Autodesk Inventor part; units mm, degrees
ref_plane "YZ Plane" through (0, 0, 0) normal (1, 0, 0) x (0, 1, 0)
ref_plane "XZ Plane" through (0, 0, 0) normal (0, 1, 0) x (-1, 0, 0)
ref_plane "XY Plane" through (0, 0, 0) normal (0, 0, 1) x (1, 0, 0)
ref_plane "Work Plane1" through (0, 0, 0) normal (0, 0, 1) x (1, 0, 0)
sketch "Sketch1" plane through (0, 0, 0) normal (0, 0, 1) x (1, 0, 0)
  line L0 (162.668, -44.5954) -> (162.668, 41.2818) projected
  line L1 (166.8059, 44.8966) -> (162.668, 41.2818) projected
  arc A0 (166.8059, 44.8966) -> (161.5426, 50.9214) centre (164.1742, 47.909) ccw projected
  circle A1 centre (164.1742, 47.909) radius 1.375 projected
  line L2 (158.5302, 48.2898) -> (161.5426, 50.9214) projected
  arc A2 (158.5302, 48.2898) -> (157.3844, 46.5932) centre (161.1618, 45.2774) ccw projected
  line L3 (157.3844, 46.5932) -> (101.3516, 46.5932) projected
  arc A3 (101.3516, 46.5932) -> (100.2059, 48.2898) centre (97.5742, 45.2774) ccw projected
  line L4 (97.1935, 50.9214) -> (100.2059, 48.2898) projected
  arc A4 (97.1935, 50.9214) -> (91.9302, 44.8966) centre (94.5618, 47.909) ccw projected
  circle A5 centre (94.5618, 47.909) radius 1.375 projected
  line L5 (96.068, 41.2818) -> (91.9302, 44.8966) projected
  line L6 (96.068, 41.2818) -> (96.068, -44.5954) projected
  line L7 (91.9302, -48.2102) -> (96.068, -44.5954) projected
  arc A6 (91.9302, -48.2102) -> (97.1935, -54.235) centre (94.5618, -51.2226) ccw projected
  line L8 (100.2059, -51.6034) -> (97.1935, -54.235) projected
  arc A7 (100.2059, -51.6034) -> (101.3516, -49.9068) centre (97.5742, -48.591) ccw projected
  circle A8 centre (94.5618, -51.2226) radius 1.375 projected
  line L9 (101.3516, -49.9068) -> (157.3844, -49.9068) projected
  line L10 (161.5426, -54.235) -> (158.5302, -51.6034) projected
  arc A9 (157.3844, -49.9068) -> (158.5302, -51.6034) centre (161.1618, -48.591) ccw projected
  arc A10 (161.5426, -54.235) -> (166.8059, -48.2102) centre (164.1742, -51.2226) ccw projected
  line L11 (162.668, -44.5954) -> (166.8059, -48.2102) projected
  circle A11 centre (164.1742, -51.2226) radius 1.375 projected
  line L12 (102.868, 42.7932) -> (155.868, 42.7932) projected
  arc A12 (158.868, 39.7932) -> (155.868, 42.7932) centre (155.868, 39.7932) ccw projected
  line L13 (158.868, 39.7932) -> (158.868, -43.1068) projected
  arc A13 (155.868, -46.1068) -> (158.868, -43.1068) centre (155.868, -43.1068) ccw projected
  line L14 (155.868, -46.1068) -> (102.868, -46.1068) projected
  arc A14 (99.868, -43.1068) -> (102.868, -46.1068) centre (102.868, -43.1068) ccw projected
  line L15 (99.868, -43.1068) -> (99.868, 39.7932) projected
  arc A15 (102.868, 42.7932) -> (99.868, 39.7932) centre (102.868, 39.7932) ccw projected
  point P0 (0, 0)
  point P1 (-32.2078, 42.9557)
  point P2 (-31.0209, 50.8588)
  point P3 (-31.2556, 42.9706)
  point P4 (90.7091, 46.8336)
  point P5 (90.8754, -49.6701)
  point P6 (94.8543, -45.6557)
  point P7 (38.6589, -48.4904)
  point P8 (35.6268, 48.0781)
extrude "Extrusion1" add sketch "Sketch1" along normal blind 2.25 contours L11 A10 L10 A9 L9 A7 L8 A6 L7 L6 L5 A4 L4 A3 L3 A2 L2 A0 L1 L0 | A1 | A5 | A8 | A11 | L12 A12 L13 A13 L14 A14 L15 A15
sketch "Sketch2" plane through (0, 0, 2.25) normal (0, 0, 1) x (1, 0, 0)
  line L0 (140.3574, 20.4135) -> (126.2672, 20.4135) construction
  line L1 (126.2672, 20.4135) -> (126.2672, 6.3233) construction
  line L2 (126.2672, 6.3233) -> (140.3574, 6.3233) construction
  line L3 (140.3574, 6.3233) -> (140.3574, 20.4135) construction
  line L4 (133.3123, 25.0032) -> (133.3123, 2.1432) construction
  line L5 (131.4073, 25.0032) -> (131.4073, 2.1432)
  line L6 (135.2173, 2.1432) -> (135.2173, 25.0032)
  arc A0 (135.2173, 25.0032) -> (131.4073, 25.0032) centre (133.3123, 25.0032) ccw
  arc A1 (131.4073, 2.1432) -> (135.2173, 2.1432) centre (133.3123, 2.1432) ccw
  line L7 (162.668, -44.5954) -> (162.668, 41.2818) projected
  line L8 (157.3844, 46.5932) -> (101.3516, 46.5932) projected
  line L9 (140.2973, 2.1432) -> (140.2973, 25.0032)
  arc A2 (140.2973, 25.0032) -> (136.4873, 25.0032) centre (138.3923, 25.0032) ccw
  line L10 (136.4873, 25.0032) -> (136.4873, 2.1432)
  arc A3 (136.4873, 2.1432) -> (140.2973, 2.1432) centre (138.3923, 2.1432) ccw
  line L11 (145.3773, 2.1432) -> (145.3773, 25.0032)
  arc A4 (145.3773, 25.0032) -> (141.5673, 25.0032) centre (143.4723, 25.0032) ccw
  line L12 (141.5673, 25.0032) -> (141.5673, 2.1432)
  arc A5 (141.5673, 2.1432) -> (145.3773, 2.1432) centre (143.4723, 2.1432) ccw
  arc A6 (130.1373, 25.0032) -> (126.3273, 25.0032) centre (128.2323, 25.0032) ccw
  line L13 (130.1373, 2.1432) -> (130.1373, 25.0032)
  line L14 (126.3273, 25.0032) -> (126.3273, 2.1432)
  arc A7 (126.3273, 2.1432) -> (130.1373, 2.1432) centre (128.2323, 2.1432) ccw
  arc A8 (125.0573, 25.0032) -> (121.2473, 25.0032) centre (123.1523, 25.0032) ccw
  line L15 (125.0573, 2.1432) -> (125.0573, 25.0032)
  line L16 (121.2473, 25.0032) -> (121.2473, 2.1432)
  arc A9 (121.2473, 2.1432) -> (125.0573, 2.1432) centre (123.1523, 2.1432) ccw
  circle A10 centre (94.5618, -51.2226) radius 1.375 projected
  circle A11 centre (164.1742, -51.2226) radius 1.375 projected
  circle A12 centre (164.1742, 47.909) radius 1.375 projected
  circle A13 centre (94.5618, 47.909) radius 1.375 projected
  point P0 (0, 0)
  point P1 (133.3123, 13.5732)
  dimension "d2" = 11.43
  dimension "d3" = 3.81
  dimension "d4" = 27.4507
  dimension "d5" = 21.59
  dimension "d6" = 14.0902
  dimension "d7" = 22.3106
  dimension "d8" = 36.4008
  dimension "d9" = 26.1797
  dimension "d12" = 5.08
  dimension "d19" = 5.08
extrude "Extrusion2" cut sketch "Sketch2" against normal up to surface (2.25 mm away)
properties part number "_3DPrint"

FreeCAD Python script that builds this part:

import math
import FreeCAD as App
import Part
import Sketcher
from FreeCAD import Vector
Q = App.Units.Quantity

doc = App.newDocument("Part")
body = doc.addObject("PartDesign::Body", "Body")

# Sketch on XY plane
sketch1 = body.newObject("Sketcher::SketchObject", "Sketch")
sketch1.AttachmentSupport = (doc.getObject("XY_Plane"), [""])
sketch1.MapMode = "FlatFace"
sketch1.addGeometry(Part.LineSegment(Vector(166.8059, -48.2102, 0), Vector(162.668, -44.5954, 0)), False)
sketch1.addGeometry(Part.LineSegment(Vector(162.668, -44.5954, 0), Vector(162.668, 41.2818, 0)), False)
sketch1.addGeometry(Part.LineSegment(Vector(162.668, 41.2818, 0), Vector(166.8059, 44.8966, 0)), False)
sketch1.addGeometry(Part.ArcOfCircle(Part.Circle(Vector(164.1742, 47.909, 0), Vector(0, 0, 1), 4.00005), math.radians(-48.858811), math.radians(131.140111)), False)
sketch1.addGeometry(Part.LineSegment(Vector(161.5426, 50.9214, 0), Vector(158.5302, 48.2898, 0)), False)
sketch1.addGeometry(Part.ArcOfCircle(Part.Circle(Vector(161.1618, 45.2774, 0), Vector(0, 0, 1), 3.999984), math.radians(131.140111), math.radians(160.794993)), False)
sketch1.addGeometry(Part.LineSegment(Vector(157.3844, 46.5932, 0), Vector(101.3516, 46.5932, 0)), False)
sketch1.addGeometry(Part.ArcOfCircle(Part.Circle(Vector(97.5742, 45.2774, 0), Vector(0, 0, 1), 4.00001), math.radians(19.205007), math.radians(48.858811)), False)
sketch1.addGeometry(Part.LineSegment(Vector(100.2059, 48.2898, 0), Vector(97.1935, 50.9214, 0)), False)
sketch1.addGeometry(Part.ArcOfCircle(Part.Circle(Vector(94.5618, 47.909, 0), Vector(0, 0, 1), 4.00005), math.radians(48.858811), math.radians(228.859889)), False)
sketch1.addGeometry(Part.LineSegment(Vector(91.9302, 44.8966, 0), Vector(96.068, 41.2818, 0)), False)
sketch1.addGeometry(Part.LineSegment(Vector(96.068, 41.2818, 0), Vector(96.068, -44.5954, 0)), False)
sketch1.addGeometry(Part.LineSegment(Vector(96.068, -44.5954, 0), Vector(91.9302, -48.2102, 0)), False)
sketch1.addGeometry(Part.ArcOfCircle(Part.Circle(Vector(94.5618, -51.2226, 0), Vector(0, 0, 1), 3.999984), math.radians(131.140111), math.radians(311.141189)), False)
sketch1.addGeometry(Part.LineSegment(Vector(97.1935, -54.235, 0), Vector(100.2059, -51.6034, 0)), False)
sketch1.addGeometry(Part.ArcOfCircle(Part.Circle(Vector(97.5742, -48.591, 0), Vector(0, 0, 1), 4.00005), math.radians(-48.858811), math.radians(-19.205007)), False)
sketch1.addGeometry(Part.LineSegment(Vector(101.3516, -49.9068, 0), Vector(157.3844, -49.9068, 0)), False)
sketch1.addGeometry(Part.ArcOfCircle(Part.Circle(Vector(161.1618, -48.591, 0), Vector(0, 0, 1), 4.00001), math.radians(-160.794993), math.radians(-131.140111)), False)
sketch1.addGeometry(Part.LineSegment(Vector(158.5302, -51.6034, 0), Vector(161.5426, -54.235, 0)), False)
sketch1.addGeometry(Part.ArcOfCircle(Part.Circle(Vector(164.1742, -51.2226, 0), Vector(0, 0, 1), 3.999984), math.radians(-131.140111), math.radians(48.858811)), False)
sketch1.addConstraint(Sketcher.Constraint("Coincident", 0, 2, 1, 1))
sketch1.addConstraint(Sketcher.Constraint("Coincident", 1, 2, 2, 1))
sketch1.addConstraint(Sketcher.Constraint("Tangent", 2, 2, 3, 1))
sketch1.addConstraint(Sketcher.Constraint("Tangent", 3, 2, 4, 1))
sketch1.addConstraint(Sketcher.Constraint("Tangent", 4, 2, 5, 1))
sketch1.addConstraint(Sketcher.Constraint("Coincident", 5, 2, 6, 1))
sketch1.addConstraint(Sketcher.Constraint("Coincident", 6, 2, 7, 1))
sketch1.addConstraint(Sketcher.Constraint("Tangent", 7, 2, 8, 1))
sketch1.addConstraint(Sketcher.Constraint("Tangent", 8, 2, 9, 1))
sketch1.addConstraint(Sketcher.Constraint("Tangent", 9, 2, 10, 1))
sketch1.addConstraint(Sketcher.Constraint("Coincident", 10, 2, 11, 1))
sketch1.addConstraint(Sketcher.Constraint("Coincident", 11, 2, 12, 1))
sketch1.addConstraint(Sketcher.Constraint("Tangent", 12, 2, 13, 1))
sketch1.addConstraint(Sketcher.Constraint("Tangent", 13, 2, 14, 1))
sketch1.addConstraint(Sketcher.Constraint("Tangent", 14, 2, 15, 1))
sketch1.addConstraint(Sketcher.Constraint("Coincident", 15, 2, 16, 1))
sketch1.addConstraint(Sketcher.Constraint("Coincident", 16, 2, 17, 1))
sketch1.addConstraint(Sketcher.Constraint("Tangent", 17, 2, 18, 1))
sketch1.addConstraint(Sketcher.Constraint("Tangent", 18, 2, 19, 1))
sketch1.addConstraint(Sketcher.Constraint("Tangent", 19, 2, 0, 1))
sketch1.addConstraint(Sketcher.Constraint("Vertical", 1))
sketch1.addConstraint(Sketcher.Constraint("Horizontal", 6))
sketch1.addConstraint(Sketcher.Constraint("Vertical", 11))
sketch1.addConstraint(Sketcher.Constraint("Horizontal", 16))
sketch1.addConstraint(Sketcher.Constraint("Equal", 3, 5))
sketch1.addConstraint(Sketcher.Constraint("Equal", 5, 7))
sketch1.addConstraint(Sketcher.Constraint("Equal", 7, 9))
sketch1.addConstraint(Sketcher.Constraint("Equal", 9, 13))
sketch1.addConstraint(Sketcher.Constraint("Equal", 13, 15))
sketch1.addConstraint(Sketcher.Constraint("Equal", 15, 17))
sketch1.addConstraint(Sketcher.Constraint("Equal", 17, 19))
sketch1.addConstraint(Sketcher.Constraint("Parallel", 2, 4))
sketch1.addConstraint(Sketcher.Constraint("Parallel", 0, 8))
sketch1.addConstraint(Sketcher.Constraint("Parallel", 8, 10))
sketch1.addConstraint(Sketcher.Constraint("Parallel", 4, 12))
sketch1.addConstraint(Sketcher.Constraint("Parallel", 12, 14))
sketch1.addConstraint(Sketcher.Constraint("Parallel", 10, 18))
sketch1.addConstraint(Sketcher.Constraint("Horizontal", 5, 3, 7, 3))
sketch1.addConstraint(Sketcher.Constraint("Horizontal", 3, 3, 9, 3))
sketch1.addConstraint(Sketcher.Constraint("Horizontal", 15, 3, 17, 3))
sketch1.addConstraint(Sketcher.Constraint("Horizontal", 13, 3, 19, 3))
sketch1.addConstraint(Sketcher.Constraint("Horizontal", 4, 2, 7, 2))
sketch1.addConstraint(Sketcher.Constraint("Horizontal", 1, 2, 10, 2))
sketch1.addConstraint(Sketcher.Constraint("Horizontal", 0, 2, 11, 2))
sketch1.addConstraint(Sketcher.Constraint("Vertical", 9, 3, 13, 3))
sketch1.addConstraint(Sketcher.Constraint("Vertical", 7, 3, 15, 3))
sketch1.addConstraint(Sketcher.Constraint("Vertical", 6, 2, 15, 2))
sketch1.addConstraint(Sketcher.Constraint("Radius", 3, 4.0))
sketch1.addConstraint(Sketcher.Constraint("Distance", 4, 4.0))
sketch1.addConstraint(Sketcher.Constraint("Angle", 0, Q("138.86 deg")))
sketch1.addConstraint(Sketcher.Constraint("DistanceX", 7, 3, 3, 3, 66.6))
sketch1.addConstraint(Sketcher.Constraint("DistanceY", 13, 3, 7, 3, 96.5))
sketch1.addConstraint(Sketcher.Constraint("DistanceX", 11, 2, 0, 2, 66.6))
sketch1.addConstraint(Sketcher.Constraint("DistanceX", 6, 2, 6, 1, 56.0328))
sketch1.addConstraint(Sketcher.Constraint("DistanceY", -1, 1, 3, 3, 47.909))
sketch1.addConstraint(Sketcher.Constraint("DistanceX", -1, 1, 0, 2, 162.668))
pad1 = body.newObject("PartDesign::Pad", "Pad")
pad1.Profile = sketch1
pad1.Length = 2.25

# Sketch on XY plane
sketch2 = body.newObject("Sketcher::SketchObject", "Sketch001")
sketch2.AttachmentSupport = (doc.getObject("XY_Plane"), [""])
sketch2.MapMode = "FlatFace"
sketch2.AttachmentOffset = App.Placement(Vector(0, 0, 2.25), App.Rotation())
sketch2.addGeometry(Part.ArcOfCircle(Part.Circle(Vector(133.3123, 25.0032, 0), Vector(0, 0, 1), 1.905), math.radians(0), math.radians(180)), False)
sketch2.addGeometry(Part.LineSegment(Vector(131.4073, 25.0032, 0), Vector(131.4073, 2.1432, 0)), False)
sketch2.addGeometry(Part.ArcOfCircle(Part.Circle(Vector(133.3123, 2.1432, 0), Vector(0, 0, 1), 1.905), math.radians(180), math.radians(360)), False)
sketch2.addGeometry(Part.LineSegment(Vector(135.2173, 2.1432, 0), Vector(135.2173, 25.0032, 0)), False)
sketch2.addGeometry(Part.ArcOfCircle(Part.Circle(Vector(138.3923, 2.1432, 0), Vector(0, 0, 1), 1.905), math.radians(180), math.radians(360)), False)
sketch2.addGeometry(Part.LineSegment(Vector(140.2973, 2.1432, 0), Vector(140.2973, 25.0032, 0)), False)
sketch2.addGeometry(Part.ArcOfCircle(Part.Circle(Vector(138.3923, 25.0032, 0), Vector(0, 0, 1), 1.905), math.radians(0), math.radians(180)), False)
sketch2.addGeometry(Part.LineSegment(Vector(136.4873, 25.0032, 0), Vector(136.4873, 2.1432, 0)), False)
sketch2.addGeometry(Part.ArcOfCircle(Part.Circle(Vector(143.4723, 2.1432, 0), Vector(0, 0, 1), 1.905), math.radians(180), math.radians(360)), False)
sketch2.addGeometry(Part.LineSegment(Vector(145.3773, 2.1432, 0), Vector(145.3773, 25.0032, 0)), False)
sketch2.addGeometry(Part.ArcOfCircle(Part.Circle(Vector(143.4723, 25.0032, 0), Vector(0, 0, 1), 1.905), math.radians(0), math.radians(180)), False)
sketch2.addGeometry(Part.LineSegment(Vector(141.5673, 25.0032, 0), Vector(141.5673, 2.1432, 0)), False)
sketch2.addGeometry(Part.LineSegment(Vector(130.1373, 2.1432, 0), Vector(130.1373, 25.0032, 0)), False)
sketch2.addGeometry(Part.ArcOfCircle(Part.Circle(Vector(128.2323, 25.0032, 0), Vector(0, 0, 1), 1.905), math.radians(0), math.radians(180)), False)
sketch2.addGeometry(Part.LineSegment(Vector(126.3273, 25.0032, 0), Vector(126.3273, 2.1432, 0)), False)
sketch2.addGeometry(Part.ArcOfCircle(Part.Circle(Vector(128.2323, 2.1432, 0), Vector(0, 0, 1), 1.905), math.radians(180), math.radians(360)), False)
sketch2.addGeometry(Part.LineSegment(Vector(125.0573, 2.1432, 0), Vector(125.0573, 25.0032, 0)), False)
sketch2.addGeometry(Part.ArcOfCircle(Part.Circle(Vector(123.1523, 25.0032, 0), Vector(0, 0, 1), 1.905), math.radians(0), math.radians(180)), False)
sketch2.addGeometry(Part.LineSegment(Vector(121.2473, 25.0032, 0), Vector(121.2473, 2.1432, 0)), False)
sketch2.addGeometry(Part.ArcOfCircle(Part.Circle(Vector(123.1523, 2.1432, 0), Vector(0, 0, 1), 1.905), math.radians(180), math.radians(360)), False)
sketch2.addGeometry(Part.Circle(Vector(94.5618, -51.2226, 0), Vector(0, 0, 1), 1.375), False)
sketch2.addGeometry(Part.Circle(Vector(164.1742, -51.2226, 0), Vector(0, 0, 1), 1.375), False)
sketch2.addGeometry(Part.Circle(Vector(164.1742, 47.909, 0), Vector(0, 0, 1), 1.375), False)
sketch2.addGeometry(Part.Circle(Vector(94.5618, 47.909, 0), Vector(0, 0, 1), 1.375), False)
sketch2.addConstraint(Sketcher.Constraint("Tangent", 0, 2, 1, 1))
sketch2.addConstraint(Sketcher.Constraint("Tangent", 1, 2, 2, 1))
sketch2.addConstraint(Sketcher.Constraint("Tangent", 2, 2, 3, 1))
sketch2.addConstraint(Sketcher.Constraint("Tangent", 3, 2, 0, 1))
sketch2.addConstraint(Sketcher.Constraint("Tangent", 4, 2, 5, 1))
sketch2.addConstraint(Sketcher.Constraint("Tangent", 5, 2, 6, 1))
sketch2.addConstraint(Sketcher.Constraint("Tangent", 6, 2, 7, 1))
sketch2.addConstraint(Sketcher.Constraint("Tangent", 7, 2, 4, 1))
sketch2.addConstraint(Sketcher.Constraint("Tangent", 8, 2, 9, 1))
sketch2.addConstraint(Sketcher.Constraint("Tangent", 9, 2, 10, 1))
sketch2.addConstraint(Sketcher.Constraint("Tangent", 10, 2, 11, 1))
sketch2.addConstraint(Sketcher.Constraint("Tangent", 11, 2, 8, 1))
sketch2.addConstraint(Sketcher.Constraint("Tangent", 12, 2, 13, 1))
sketch2.addConstraint(Sketcher.Constraint("Tangent", 13, 2, 14, 1))
sketch2.addConstraint(Sketcher.Constraint("Tangent", 14, 2, 15, 1))
sketch2.addConstraint(Sketcher.Constraint("Tangent", 15, 2, 12, 1))
sketch2.addConstraint(Sketcher.Constraint("Tangent", 16, 2, 17, 1))
sketch2.addConstraint(Sketcher.Constraint("Tangent", 17, 2, 18, 1))
sketch2.addConstraint(Sketcher.Constraint("Tangent", 18, 2, 19, 1))
sketch2.addConstraint(Sketcher.Constraint("Tangent", 19, 2, 16, 1))
sketch2.addConstraint(Sketcher.Constraint("Vertical", 1))
sketch2.addConstraint(Sketcher.Constraint("Vertical", 3))
sketch2.addConstraint(Sketcher.Constraint("Vertical", 5))
sketch2.addConstraint(Sketcher.Constraint("Vertical", 7))
sketch2.addConstraint(Sketcher.Constraint("Vertical", 9))
sketch2.addConstraint(Sketcher.Constraint("Vertical", 11))
sketch2.addConstraint(Sketcher.Constraint("Vertical", 12))
sketch2.addConstraint(Sketcher.Constraint("Vertical", 14))
sketch2.addConstraint(Sketcher.Constraint("Vertical", 16))
sketch2.addConstraint(Sketcher.Constraint("Vertical", 18))
sketch2.addConstraint(Sketcher.Constraint("Equal", 2, 4))
sketch2.addConstraint(Sketcher.Constraint("Equal", 6, 8))
sketch2.addConstraint(Sketcher.Constraint("Equal", 10, 13))
sketch2.addConstraint(Sketcher.Constraint("Equal", 15, 17))
sketch2.addConstraint(Sketcher.Constraint("Equal", 20, 21))
sketch2.addConstraint(Sketcher.Constraint("Equal", 21, 22))
sketch2.addConstraint(Sketcher.Constraint("Equal", 22, 23))
sketch2.addConstraint(Sketcher.Constraint("Horizontal", 2, 3, 4, 3))
sketch2.addConstraint(Sketcher.Constraint("Horizontal", 0, 3, 6, 3))
sketch2.addConstraint(Sketcher.Constraint("Horizontal", 4, 3, 8, 3))
sketch2.addConstraint(Sketcher.Constraint("Horizontal", 6, 3, 10, 3))
sketch2.addConstraint(Sketcher.Constraint("Horizontal", 10, 3, 13, 3))
sketch2.addConstraint(Sketcher.Constraint("Horizontal", 8, 3, 15, 3))
sketch2.addConstraint(Sketcher.Constraint("Horizontal", 13, 3, 17, 3))
sketch2.addConstraint(Sketcher.Constraint("Horizontal", 15, 3, 19, 3))
sketch2.addConstraint(Sketcher.Constraint("Horizontal", 20, 3, 21, 3))
sketch2.addConstraint(Sketcher.Constraint("Horizontal", 22, 3, 23, 3))
sketch2.addConstraint(Sketcher.Constraint("Vertical", 21, 3, 22, 3))
sketch2.addConstraint(Sketcher.Constraint("Vertical", 20, 3, 23, 3))
sketch2.addConstraint(Sketcher.Constraint("Radius", 0, 1.905))
sketch2.addConstraint(Sketcher.Constraint("Diameter", 20, 2.75))
sketch2.addConstraint(Sketcher.Constraint("DistanceX", 2, 3, 4, 3, 5.08))
sketch2.addConstraint(Sketcher.Constraint("DistanceX", 4, 3, 8, 3, 5.08))
sketch2.addConstraint(Sketcher.Constraint("DistanceX", 13, 3, 0, 3, 5.08))
sketch2.addConstraint(Sketcher.Constraint("DistanceX", 17, 3, 13, 3, 5.08))
sketch2.addConstraint(Sketcher.Constraint("DistanceY", 1, 2, 1, 1, 22.86))
sketch2.addConstraint(Sketcher.Constraint("DistanceY", -1, 1, 22, 3, 47.909))
sketch2.addConstraint(Sketcher.Constraint("DistanceX", 8, 3, 21, 3, 20.702))
sketch2.addConstraint(Sketcher.Constraint("DistanceX", -1, 1, 0, 3, 133.3123))
sketch2.addConstraint(Sketcher.Constraint("DistanceY", -1, 1, 0, 3, 25.0032))
sketch2.addConstraint(Sketcher.Constraint("DistanceX", -1, 1, 20, 3, 94.5618))
sketch2.addConstraint(Sketcher.Constraint("DistanceY", 20, 3, -1, 1, 51.2226))
pocket1 = body.newObject("PartDesign::Pocket", "Pocket")
pocket1.Profile = sketch2
pocket1.Length = 2.25

doc.recompute()
